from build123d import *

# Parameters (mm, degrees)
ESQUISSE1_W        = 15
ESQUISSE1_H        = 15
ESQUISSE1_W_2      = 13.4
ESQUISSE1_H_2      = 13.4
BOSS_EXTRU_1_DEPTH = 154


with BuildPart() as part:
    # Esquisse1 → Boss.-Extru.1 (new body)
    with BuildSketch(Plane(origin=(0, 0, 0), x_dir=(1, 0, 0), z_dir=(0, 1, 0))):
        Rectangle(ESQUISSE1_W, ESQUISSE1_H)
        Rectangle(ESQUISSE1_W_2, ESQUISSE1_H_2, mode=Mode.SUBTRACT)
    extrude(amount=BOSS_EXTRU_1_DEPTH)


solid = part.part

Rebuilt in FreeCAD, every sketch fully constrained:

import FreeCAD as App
import Part
import Sketcher

V = App.Vector
Q = App.Units.Quantity


def add_polygon(sketch, points):
    """Adds a closed chain of lines whose ends are joined by coincident constraints."""
    first, n = sketch.GeometryCount, len(points)
    for a, b in zip(points, points[1:] + points[:1]):
        sketch.addGeometry(Part.LineSegment(App.Vector(*a, 0), App.Vector(*b, 0)), False)
    for i in range(n):
        sketch.addConstraint(Sketcher.Constraint("Coincident", first + i, 2, first + (i + 1) % n, 1))

doc = App.newDocument("Part")
params = doc.addObject("Spreadsheet::Sheet", "Params")
for row, (alias, value) in enumerate([
    ("sketch1_width", "15 mm"),
    ("sketch1_width2", "13.4 mm"),
    ("pad1_length", "154 mm"),
], start=1):
    params.set(f"A{row}", alias)
    params.set(f"B{row}", "=" + value)
    params.setAlias(f"B{row}", alias)

body = doc.addObject("PartDesign::Body", "Body")

sketch1 = body.newObject("Sketcher::SketchObject", "Sketch")
sketch1.AttachmentSupport = (doc.getObject("XZ_Plane"), [""])
sketch1.MapMode = "FlatFace"
add_polygon(sketch1, [(-8, -8), (-8, 8), (8, 8), (8, -8)])
add_polygon(sketch1, [(7, 7), (-7, 7), (-7, -7), (7, -7)])
sketch1.addConstraint(Sketcher.Constraint("Vertical", 0))
sketch1.addConstraint(Sketcher.Constraint("Horizontal", 1))
sketch1.addConstraint(Sketcher.Constraint("Vertical", 2))
sketch1.addConstraint(Sketcher.Constraint("Horizontal", 3))
sketch1.addConstraint(Sketcher.Constraint("Horizontal", 4))
sketch1.addConstraint(Sketcher.Constraint("Vertical", 5))
sketch1.addConstraint(Sketcher.Constraint("Horizontal", 6))
sketch1.addConstraint(Sketcher.Constraint("Vertical", 7))
sketch1.addConstraint(Sketcher.Constraint("Symmetric", 0, 2, 2, 2, -1, 1))
sketch1.addConstraint(Sketcher.Constraint("Symmetric", 4, 2, 6, 2, -1, 1))
sketch1.addConstraint(Sketcher.Constraint("Equal", 3, 0))
sketch1.addConstraint(Sketcher.Constraint("Equal", 6, 5))
sketch1.addConstraint(Sketcher.Constraint("DistanceX", 1, 1, 1, 2, Q("15 mm")))
sketch1.addConstraint(Sketcher.Constraint("DistanceX", 4, 2, 4, 1, Q("13.4 mm")))
sketch1.setExpression("Constraints[20]", "Params.sketch1_width")
sketch1.setExpression("Constraints[21]", "Params.sketch1_width2")
pad1 = body.newObject("PartDesign::Pad", "Pad")
pad1.Profile = sketch1
pad1.setExpression("Length", "Params.pad1_length")
pad1.Reversed = True

doc.recompute()
